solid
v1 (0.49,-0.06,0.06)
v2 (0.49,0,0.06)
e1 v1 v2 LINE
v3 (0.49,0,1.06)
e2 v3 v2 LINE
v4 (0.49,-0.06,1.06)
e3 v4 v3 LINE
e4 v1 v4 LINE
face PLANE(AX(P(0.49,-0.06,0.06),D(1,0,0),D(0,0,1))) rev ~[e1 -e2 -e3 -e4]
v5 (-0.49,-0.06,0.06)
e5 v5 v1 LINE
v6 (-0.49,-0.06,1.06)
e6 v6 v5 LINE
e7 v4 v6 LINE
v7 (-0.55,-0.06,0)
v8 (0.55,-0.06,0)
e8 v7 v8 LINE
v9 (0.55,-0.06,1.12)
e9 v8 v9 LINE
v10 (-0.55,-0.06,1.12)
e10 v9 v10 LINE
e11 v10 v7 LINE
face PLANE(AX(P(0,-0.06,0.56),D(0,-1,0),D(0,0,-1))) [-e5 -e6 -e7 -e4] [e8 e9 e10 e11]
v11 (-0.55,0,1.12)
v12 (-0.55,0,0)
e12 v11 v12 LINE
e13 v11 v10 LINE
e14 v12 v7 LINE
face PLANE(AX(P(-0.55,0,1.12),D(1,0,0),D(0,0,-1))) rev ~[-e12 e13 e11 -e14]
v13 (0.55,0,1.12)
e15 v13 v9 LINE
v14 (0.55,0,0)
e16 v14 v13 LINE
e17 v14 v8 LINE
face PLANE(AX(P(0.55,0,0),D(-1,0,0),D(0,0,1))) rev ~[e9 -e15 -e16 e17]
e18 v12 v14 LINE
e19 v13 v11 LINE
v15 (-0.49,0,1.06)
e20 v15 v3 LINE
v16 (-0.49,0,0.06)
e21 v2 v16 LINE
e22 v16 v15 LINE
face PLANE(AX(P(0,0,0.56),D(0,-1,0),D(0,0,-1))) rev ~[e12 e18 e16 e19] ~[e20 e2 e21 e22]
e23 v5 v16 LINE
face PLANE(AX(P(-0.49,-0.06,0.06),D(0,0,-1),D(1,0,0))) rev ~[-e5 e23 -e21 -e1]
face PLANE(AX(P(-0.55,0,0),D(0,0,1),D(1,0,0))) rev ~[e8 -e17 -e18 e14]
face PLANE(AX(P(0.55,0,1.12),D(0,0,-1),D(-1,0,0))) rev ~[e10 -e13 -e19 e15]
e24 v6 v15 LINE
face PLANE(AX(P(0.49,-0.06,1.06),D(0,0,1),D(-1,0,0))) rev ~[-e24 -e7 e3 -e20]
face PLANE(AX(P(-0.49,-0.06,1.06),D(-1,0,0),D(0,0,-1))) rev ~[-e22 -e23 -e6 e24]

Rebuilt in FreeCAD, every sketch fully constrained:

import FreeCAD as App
import Part
import Sketcher

V = App.Vector


def add_polygon(sketch, points):
    """Adds a closed chain of lines whose ends are joined by coincident constraints."""
    first, n = sketch.GeometryCount, len(points)
    for a, b in zip(points, points[1:] + points[:1]):
        sketch.addGeometry(Part.LineSegment(App.Vector(*a, 0), App.Vector(*b, 0)), False)
    for i in range(n):
        sketch.addConstraint(Sketcher.Constraint("Coincident", first + i, 2, first + (i + 1) % n, 1))

doc = App.newDocument("Part")
body = doc.addObject("PartDesign::Body", "Body")

sketch1 = body.newObject("Sketcher::SketchObject", "Sketch")
sketch1.AttachmentSupport = (doc.getObject("XZ_Plane"), [""])
sketch1.MapMode = "FlatFace"
add_polygon(sketch1, [(-0.6, 1.1), (-0.6, 0), (0.6, 0), (0.6, 1.1)])
sketch1.addConstraint([
    Sketcher.Constraint("Vertical", 0),
    Sketcher.Constraint("Horizontal", 1),
    Sketcher.Constraint("Vertical", 2),
    Sketcher.Constraint("Horizontal", 3),
    Sketcher.Constraint("Symmetric", 0, 2, 1, 2, -1, 1),
    Sketcher.Constraint("DistanceX", 0, 2, -1, 1, 0.55),
    Sketcher.Constraint("DistanceY", 0, 2, 0, 1, 1.12),
])
pad1 = body.newObject("PartDesign::Pad", "Pad")
pad1.Profile = sketch1
pad1.Length = 0.06

sketch2 = body.newObject("Sketcher::SketchObject", "Sketch001")
sketch2.AttachmentSupport = (doc.getObject("XZ_Plane"), [""])
sketch2.MapMode = "FlatFace"
sketch2.AttachmentOffset = App.Placement(V(0, 0, 0.06), App.Rotation())
add_polygon(sketch2, [(-0.5, 1.1), (-0.5, 0.1), (0.5, 0.1), (0.5, 1.1)])
sketch2.addConstraint([
    Sketcher.Constraint("Vertical", 0),
    Sketcher.Constraint("Horizontal", 1),
    Sketcher.Constraint("Vertical", 2),
    Sketcher.Constraint("Horizontal", 3),
    Sketcher.Constraint("DistanceY", 0, 2, 0, 1, 1.0),
    Sketcher.Constraint("DistanceX", 0, 2, -1, 1, 0.49),
    Sketcher.Constraint("DistanceX", -1, 1, 1, 2, 0.49),
    Sketcher.Constraint("DistanceY", -1, 1, 0, 2, 0.06),
])
pocket1 = body.newObject("PartDesign::Pocket", "Pocket")
pocket1.Profile = sketch2
pocket1.Type = "UpToFirst"

doc.recompute()
